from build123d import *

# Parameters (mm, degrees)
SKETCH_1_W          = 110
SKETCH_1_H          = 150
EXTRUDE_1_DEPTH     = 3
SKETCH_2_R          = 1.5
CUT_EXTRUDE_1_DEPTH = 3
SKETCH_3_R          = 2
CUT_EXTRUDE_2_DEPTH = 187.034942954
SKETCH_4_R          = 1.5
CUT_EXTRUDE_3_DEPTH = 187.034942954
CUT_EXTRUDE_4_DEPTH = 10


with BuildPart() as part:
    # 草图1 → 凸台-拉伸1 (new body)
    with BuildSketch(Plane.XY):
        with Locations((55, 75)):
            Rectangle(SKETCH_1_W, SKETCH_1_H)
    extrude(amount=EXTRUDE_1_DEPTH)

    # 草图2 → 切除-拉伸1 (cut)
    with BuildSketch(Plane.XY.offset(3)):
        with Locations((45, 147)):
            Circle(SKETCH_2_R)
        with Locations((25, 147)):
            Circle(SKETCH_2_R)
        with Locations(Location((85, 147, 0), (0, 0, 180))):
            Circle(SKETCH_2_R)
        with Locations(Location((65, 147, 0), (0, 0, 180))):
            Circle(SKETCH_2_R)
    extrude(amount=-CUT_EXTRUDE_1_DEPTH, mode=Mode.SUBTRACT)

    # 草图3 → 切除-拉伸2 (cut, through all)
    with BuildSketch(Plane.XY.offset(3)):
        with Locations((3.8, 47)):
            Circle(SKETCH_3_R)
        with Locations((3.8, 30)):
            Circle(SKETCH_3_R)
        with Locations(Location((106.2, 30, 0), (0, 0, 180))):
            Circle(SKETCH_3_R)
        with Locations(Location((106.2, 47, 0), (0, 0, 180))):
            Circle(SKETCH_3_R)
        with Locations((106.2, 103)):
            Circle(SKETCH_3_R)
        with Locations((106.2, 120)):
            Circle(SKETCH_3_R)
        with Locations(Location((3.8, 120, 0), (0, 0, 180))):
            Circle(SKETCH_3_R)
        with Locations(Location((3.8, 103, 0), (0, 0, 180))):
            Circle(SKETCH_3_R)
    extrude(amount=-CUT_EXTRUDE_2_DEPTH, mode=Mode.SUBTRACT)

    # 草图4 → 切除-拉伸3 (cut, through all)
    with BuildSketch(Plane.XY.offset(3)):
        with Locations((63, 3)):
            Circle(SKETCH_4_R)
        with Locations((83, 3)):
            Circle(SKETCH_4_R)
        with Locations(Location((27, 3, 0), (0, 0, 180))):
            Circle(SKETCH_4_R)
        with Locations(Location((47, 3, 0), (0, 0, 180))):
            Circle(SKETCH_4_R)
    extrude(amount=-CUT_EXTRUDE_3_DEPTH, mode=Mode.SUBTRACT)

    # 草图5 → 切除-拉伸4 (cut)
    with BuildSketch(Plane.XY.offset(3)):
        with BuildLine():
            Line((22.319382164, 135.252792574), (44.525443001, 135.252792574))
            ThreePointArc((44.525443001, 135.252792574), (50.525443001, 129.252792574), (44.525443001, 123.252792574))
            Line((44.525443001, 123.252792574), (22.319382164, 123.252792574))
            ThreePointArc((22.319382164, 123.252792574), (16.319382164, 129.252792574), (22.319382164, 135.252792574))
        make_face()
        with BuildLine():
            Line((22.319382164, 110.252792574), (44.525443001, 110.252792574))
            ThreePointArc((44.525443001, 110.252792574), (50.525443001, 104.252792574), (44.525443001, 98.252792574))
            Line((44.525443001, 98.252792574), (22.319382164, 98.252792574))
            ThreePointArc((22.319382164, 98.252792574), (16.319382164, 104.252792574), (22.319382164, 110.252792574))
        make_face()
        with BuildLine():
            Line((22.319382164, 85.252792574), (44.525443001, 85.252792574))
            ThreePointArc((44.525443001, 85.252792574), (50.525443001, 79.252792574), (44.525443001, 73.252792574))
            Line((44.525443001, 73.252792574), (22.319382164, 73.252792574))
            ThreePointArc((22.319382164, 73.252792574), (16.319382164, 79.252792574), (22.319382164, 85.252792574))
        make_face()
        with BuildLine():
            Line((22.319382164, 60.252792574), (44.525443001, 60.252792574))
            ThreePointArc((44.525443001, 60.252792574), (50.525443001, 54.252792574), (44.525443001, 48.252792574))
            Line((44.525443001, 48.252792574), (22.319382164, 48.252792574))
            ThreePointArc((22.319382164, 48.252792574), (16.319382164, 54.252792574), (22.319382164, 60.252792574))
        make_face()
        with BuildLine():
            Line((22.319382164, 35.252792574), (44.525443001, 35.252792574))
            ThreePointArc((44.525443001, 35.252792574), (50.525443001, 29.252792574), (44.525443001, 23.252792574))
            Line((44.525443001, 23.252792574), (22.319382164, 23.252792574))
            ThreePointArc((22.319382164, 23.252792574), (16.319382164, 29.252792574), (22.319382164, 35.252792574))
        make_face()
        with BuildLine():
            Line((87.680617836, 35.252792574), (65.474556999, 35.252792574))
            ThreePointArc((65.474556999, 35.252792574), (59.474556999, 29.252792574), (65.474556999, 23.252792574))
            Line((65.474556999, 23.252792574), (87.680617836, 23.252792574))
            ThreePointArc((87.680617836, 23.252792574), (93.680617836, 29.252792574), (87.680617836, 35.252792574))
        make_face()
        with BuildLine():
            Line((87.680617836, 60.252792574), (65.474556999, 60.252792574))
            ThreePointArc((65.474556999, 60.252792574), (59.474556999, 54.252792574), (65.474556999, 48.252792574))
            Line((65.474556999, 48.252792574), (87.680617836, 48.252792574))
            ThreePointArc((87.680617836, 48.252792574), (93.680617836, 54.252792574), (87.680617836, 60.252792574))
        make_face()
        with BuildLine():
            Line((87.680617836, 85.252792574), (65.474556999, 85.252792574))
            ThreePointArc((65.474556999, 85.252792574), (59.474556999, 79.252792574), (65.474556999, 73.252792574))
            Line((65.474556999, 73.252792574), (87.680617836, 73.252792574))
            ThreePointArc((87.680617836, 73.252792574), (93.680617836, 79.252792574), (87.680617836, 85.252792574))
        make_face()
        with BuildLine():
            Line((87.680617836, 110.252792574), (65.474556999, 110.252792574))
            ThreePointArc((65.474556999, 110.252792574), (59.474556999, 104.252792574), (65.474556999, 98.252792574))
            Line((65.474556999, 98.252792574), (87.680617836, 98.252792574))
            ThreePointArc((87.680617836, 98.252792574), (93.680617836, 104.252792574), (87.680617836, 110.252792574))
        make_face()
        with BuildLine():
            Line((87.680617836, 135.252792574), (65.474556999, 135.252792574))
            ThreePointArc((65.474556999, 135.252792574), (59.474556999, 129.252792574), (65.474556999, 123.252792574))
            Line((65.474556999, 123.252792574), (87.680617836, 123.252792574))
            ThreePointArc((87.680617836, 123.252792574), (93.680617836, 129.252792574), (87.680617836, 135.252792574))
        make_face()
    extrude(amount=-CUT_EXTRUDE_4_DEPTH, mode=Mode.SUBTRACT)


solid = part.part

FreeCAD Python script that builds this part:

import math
import FreeCAD as App
import Part
import Sketcher


def add_polygon(sketch, points):
    """Adds a closed chain of lines whose ends are joined by coincident constraints."""
    first, n = sketch.GeometryCount, len(points)
    for a, b in zip(points, points[1:] + points[:1]):
        sketch.addGeometry(Part.LineSegment(App.Vector(*a, 0), App.Vector(*b, 0)), False)
    for i in range(n):
        sketch.addConstraint(Sketcher.Constraint("Coincident", first + i, 2, first + (i + 1) % n, 1))

doc = App.newDocument("Part")
body = doc.addObject("PartDesign::Body", "Body")

# Sketch on XY plane
sketch1 = body.newObject("Sketcher::SketchObject", "Sketch")
sketch1.AttachmentSupport = (doc.getObject("XY_Plane"), [""])
sketch1.MapMode = "FlatFace"
add_polygon(sketch1, [(0, 150), (0, 0), (110, 0), (110, 150)])  # lines 0-3
sketch1.addConstraint([
    Sketcher.Constraint("Vertical", 0),
    Sketcher.Constraint("Horizontal", 1),
    Sketcher.Constraint("Vertical", 2),
    Sketcher.Constraint("Horizontal", 3),
    Sketcher.Constraint("Coincident", 0, 2, -1, 1),
    Sketcher.Constraint("DistanceX", 1, 1, 1, 2, 110.0),
    Sketcher.Constraint("DistanceY", 0, 2, 0, 1, 150.0),
])
pad1 = body.newObject("PartDesign::Pad", "Pad")
pad1.Profile = sketch1
pad1.Length = 3

# Sketch on XY plane
sketch2 = body.newObject("Sketcher::SketchObject", "Sketch001")
sketch2.AttachmentSupport = (doc.getObject("XY_Plane"), [""])
sketch2.MapMode = "FlatFace"
sketch2.AttachmentOffset = App.Placement(App.Vector(0, 0, 3), App.Rotation())
sketch2.addGeometry([
    Part.Circle(App.Vector(45, 147, 0), App.Vector(0, 0, 1), 1.5),
    Part.Circle(App.Vector(25, 147, 0), App.Vector(0, 0, 1), 1.5),
    Part.Circle(App.Vector(85, 147, 0), App.Vector(0, 0, 1), 1.5),
    Part.Circle(App.Vector(65, 147, 0), App.Vector(0, 0, 1), 1.5),
], False)
sketch2.addConstraint([
    Sketcher.Constraint("Equal", 0, 1),
    Sketcher.Constraint("Equal", 1, 2),
    Sketcher.Constraint("Equal", 2, 3),
    Sketcher.Constraint("Horizontal", 0, 3, 1, 3),
    Sketcher.Constraint("Horizontal", 1, 3, 2, 3),
    Sketcher.Constraint("Horizontal", 2, 3, 3, 3),
    Sketcher.Constraint("Diameter", 0, 3.0),
    Sketcher.Constraint("DistanceX", -1, 1, 0, 3, 45.0),
    Sketcher.Constraint("DistanceY", -1, 1, 0, 3, 147.0),
    Sketcher.Constraint("DistanceX", -1, 1, 1, 3, 25.0),
    Sketcher.Constraint("DistanceX", -1, 1, 2, 3, 85.0),
    Sketcher.Constraint("DistanceX", -1, 1, 3, 3, 65.0),
])
pocket1 = body.newObject("PartDesign::Pocket", "Pocket")
pocket1.Profile = sketch2
pocket1.Length = 3

# Sketch on XY plane
sketch3 = body.newObject("Sketcher::SketchObject", "Sketch002")
sketch3.AttachmentSupport = (doc.getObject("XY_Plane"), [""])
sketch3.MapMode = "FlatFace"
sketch3.AttachmentOffset = App.Placement(App.Vector(0, 0, 3), App.Rotation())
sketch3.addGeometry([
    Part.Circle(App.Vector(3.8, 47, 0), App.Vector(0, 0, 1), 2),  # 0
    Part.Circle(App.Vector(3.8, 30, 0), App.Vector(0, 0, 1), 2),  # 1
    Part.Circle(App.Vector(106.2, 30, 0), App.Vector(0, 0, 1), 2),  # 2
    Part.Circle(App.Vector(106.2, 47, 0), App.Vector(0, 0, 1), 2),  # 3
    Part.Circle(App.Vector(106.2, 103, 0), App.Vector(0, 0, 1), 2),  # 4
    Part.Circle(App.Vector(106.2, 120, 0), App.Vector(0, 0, 1), 2),  # 5
    Part.Circle(App.Vector(3.8, 120, 0), App.Vector(0, 0, 1), 2),  # 6
    Part.Circle(App.Vector(3.8, 103, 0), App.Vector(0, 0, 1), 2),  # 7
], False)
sketch3.addConstraint([
    Sketcher.Constraint("Equal", 0, 1),
    Sketcher.Constraint("Equal", 1, 2),
    Sketcher.Constraint("Equal", 2, 3),
    Sketcher.Constraint("Equal", 3, 4),
    Sketcher.Constraint("Equal", 4, 5),
    Sketcher.Constraint("Equal", 5, 6),
    Sketcher.Constraint("Equal", 6, 7),
    Sketcher.Constraint("Horizontal", 1, 3, 2, 3),
    Sketcher.Constraint("Horizontal", 0, 3, 3, 3),
    Sketcher.Constraint("Horizontal", 5, 3, 6, 3),
    Sketcher.Constraint("Horizontal", 4, 3, 7, 3),
    Sketcher.Constraint("Vertical", 0, 3, 1, 3),
    Sketcher.Constraint("Vertical", 2, 3, 3, 3),
    Sketcher.Constraint("Vertical", 3, 3, 4, 3),
    Sketcher.Constraint("Vertical", 4, 3, 5, 3),
    Sketcher.Constraint("Vertical", 1, 3, 6, 3),
    Sketcher.Constraint("Vertical", 6, 3, 7, 3),
    Sketcher.Constraint("Diameter", 0, 4.0),
    Sketcher.Constraint("DistanceY", -1, 1, 0, 3, 47.0),
    Sketcher.Constraint("DistanceY", -1, 1, 1, 3, 30.0),
    Sketcher.Constraint("DistanceY", -1, 1, 4, 3, 103.0),
    Sketcher.Constraint("DistanceY", -1, 1, 5, 3, 120.0),
    Sketcher.Constraint("DistanceX", -1, 1, 0, 3, 3.8),
    Sketcher.Constraint("DistanceX", -1, 1, 2, 3, 106.2),
])
pocket2 = body.newObject("PartDesign::Pocket", "Pocket001")
pocket2.Profile = sketch3
pocket2.Type = "ThroughAll"

# Sketch on XY plane
sketch4 = body.newObject("Sketcher::SketchObject", "Sketch003")
sketch4.AttachmentSupport = (doc.getObject("XY_Plane"), [""])
sketch4.MapMode = "FlatFace"
sketch4.AttachmentOffset = App.Placement(App.Vector(0, 0, 3), App.Rotation())
sketch4.addGeometry([
    Part.Circle(App.Vector(63, 3, 0), App.Vector(0, 0, 1), 1.5),
    Part.Circle(App.Vector(83, 3, 0), App.Vector(0, 0, 1), 1.5),
    Part.Circle(App.Vector(27, 3, 0), App.Vector(0, 0, 1), 1.5),
    Part.Circle(App.Vector(47, 3, 0), App.Vector(0, 0, 1), 1.5),
], False)
sketch4.addConstraint([
    Sketcher.Constraint("Equal", 0, 1),
    Sketcher.Constraint("Equal", 1, 2),
    Sketcher.Constraint("Equal", 2, 3),
    Sketcher.Constraint("Horizontal", 0, 3, 1, 3),
    Sketcher.Constraint("Horizontal", 1, 3, 2, 3),
    Sketcher.Constraint("Horizontal", 2, 3, 3, 3),
    Sketcher.Constraint("Diameter", 0, 3.0),
    Sketcher.Constraint("DistanceX", -1, 1, 0, 3, 63.0),
    Sketcher.Constraint("DistanceY", -1, 1, 0, 3, 3.0),
    Sketcher.Constraint("DistanceX", -1, 1, 1, 3, 83.0),
    Sketcher.Constraint("DistanceX", -1, 1, 2, 3, 27.0),
    Sketcher.Constraint("DistanceX", -1, 1, 3, 3, 47.0),
])
pocket3 = body.newObject("PartDesign::Pocket", "Pocket002")
pocket3.Profile = sketch4
pocket3.Type = "ThroughAll"

# Sketch on XY plane
sketch5 = body.newObject("Sketcher::SketchObject", "Sketch004")
sketch5.AttachmentSupport = (doc.getObject("XY_Plane"), [""])
sketch5.MapMode = "FlatFace"
sketch5.AttachmentOffset = App.Placement(App.Vector(0, 0, 3), App.Rotation())
sketch5.addGeometry([
    Part.LineSegment(App.Vector(45, 135, 0), App.Vector(22, 135, 0)),  # 0
    Part.ArcOfCircle(Part.Circle(App.Vector(22, 129, 0), App.Vector(0, 0, 1), 6), math.radians(90), math.radians(270)),  # 1
    Part.LineSegment(App.Vector(22, 123, 0), App.Vector(45, 123, 0)),  # 2
    Part.ArcOfCircle(Part.Circle(App.Vector(45, 129, 0), App.Vector(0, 0, 1), 6), math.radians(-90), math.radians(90)),  # 3
    Part.LineSegment(App.Vector(45, 110, 0), App.Vector(22, 110, 0)),  # 4
    Part.ArcOfCircle(Part.Circle(App.Vector(22, 104, 0), App.Vector(0, 0, 1), 6), math.radians(90), math.radians(270)),  # 5
    Part.LineSegment(App.Vector(22, 98, 0), App.Vector(45, 98, 0)),  # 6
    Part.ArcOfCircle(Part.Circle(App.Vector(45, 104, 0), App.Vector(0, 0, 1), 6), math.radians(-90), math.radians(90)),  # 7
    Part.LineSegment(App.Vector(45, 85, 0), App.Vector(22, 85, 0)),  # 8
    Part.ArcOfCircle(Part.Circle(App.Vector(22, 79, 0), App.Vector(0, 0, 1), 6), math.radians(90), math.radians(270)),  # 9
    Part.LineSegment(App.Vector(22, 73, 0), App.Vector(45, 73, 0)),  # 10
    Part.ArcOfCircle(Part.Circle(App.Vector(45, 79, 0), App.Vector(0, 0, 1), 6), math.radians(-90), math.radians(90)),  # 11
    Part.LineSegment(App.Vector(45, 60, 0), App.Vector(22, 60, 0)),  # 12
    Part.ArcOfCircle(Part.Circle(App.Vector(22, 54, 0), App.Vector(0, 0, 1), 6), math.radians(90), math.radians(270)),  # 13
    Part.LineSegment(App.Vector(22, 48, 0), App.Vector(45, 48, 0)),  # 14
    Part.ArcOfCircle(Part.Circle(App.Vector(45, 54, 0), App.Vector(0, 0, 1), 6), math.radians(-90), math.radians(90)),  # 15
    Part.LineSegment(App.Vector(45, 35, 0), App.Vector(22, 35, 0)),  # 16
    Part.ArcOfCircle(Part.Circle(App.Vector(22, 29, 0), App.Vector(0, 0, 1), 6), math.radians(90), math.radians(270)),  # 17
    Part.LineSegment(App.Vector(22, 23, 0), App.Vector(45, 23, 0)),  # 18
    Part.ArcOfCircle(Part.Circle(App.Vector(45, 29, 0), App.Vector(0, 0, 1), 6), math.radians(-90), math.radians(90)),  # 19
    Part.LineSegment(App.Vector(88, 35, 0), App.Vector(65, 35, 0)),  # 20
    Part.ArcOfCircle(Part.Circle(App.Vector(65, 29, 0), App.Vector(0, 0, 1), 6), math.radians(90), math.radians(270)),  # 21
    Part.LineSegment(App.Vector(65, 23, 0), App.Vector(88, 23, 0)),  # 22
    Part.ArcOfCircle(Part.Circle(App.Vector(88, 29, 0), App.Vector(0, 0, 1), 6), math.radians(-90), math.radians(90)),  # 23
    Part.LineSegment(App.Vector(88, 60, 0), App.Vector(65, 60, 0)),  # 24
    Part.ArcOfCircle(Part.Circle(App.Vector(65, 54, 0), App.Vector(0, 0, 1), 6), math.radians(90), math.radians(270)),  # 25
    Part.LineSegment(App.Vector(65, 48, 0), App.Vector(88, 48, 0)),  # 26
    Part.ArcOfCircle(Part.Circle(App.Vector(88, 54, 0), App.Vector(0, 0, 1), 6), math.radians(-90), math.radians(90)),  # 27
    Part.LineSegment(App.Vector(88, 85, 0), App.Vector(65, 85, 0)),  # 28
    Part.ArcOfCircle(Part.Circle(App.Vector(65, 79, 0), App.Vector(0, 0, 1), 6), math.radians(90), math.radians(270)),  # 29
    Part.LineSegment(App.Vector(65, 73, 0), App.Vector(88, 73, 0)),  # 30
    Part.ArcOfCircle(Part.Circle(App.Vector(88, 79, 0), App.Vector(0, 0, 1), 6), math.radians(-90), math.radians(90)),  # 31
    Part.LineSegment(App.Vector(88, 110, 0), App.Vector(65, 110, 0)),  # 32
    Part.ArcOfCircle(Part.Circle(App.Vector(65, 104, 0), App.Vector(0, 0, 1), 6), math.radians(90), math.radians(270)),  # 33
    Part.LineSegment(App.Vector(65, 98, 0), App.Vector(88, 98, 0)),  # 34
    Part.ArcOfCircle(Part.Circle(App.Vector(88, 104, 0), App.Vector(0, 0, 1), 6), math.radians(-90), math.radians(90)),  # 35
    Part.LineSegment(App.Vector(88, 135, 0), App.Vector(65, 135, 0)),  # 36
    Part.ArcOfCircle(Part.Circle(App.Vector(65, 129, 0), App.Vector(0, 0, 1), 6), math.radians(90), math.radians(270)),  # 37
    Part.LineSegment(App.Vector(65, 123, 0), App.Vector(88, 123, 0)),  # 38
    Part.ArcOfCircle(Part.Circle(App.Vector(88, 129, 0), App.Vector(0, 0, 1), 6), math.radians(-90), math.radians(90)),  # 39
], False)
sketch5.addConstraint([
    Sketcher.Constraint("Tangent", 0, 2, 1, 1),
    Sketcher.Constraint("Tangent", 1, 2, 2, 1),
    Sketcher.Constraint("Tangent", 2, 2, 3, 1),
    Sketcher.Constraint("Tangent", 3, 2, 0, 1),
    Sketcher.Constraint("Tangent", 4, 2, 5, 1),
    Sketcher.Constraint("Tangent", 5, 2, 6, 1),
    Sketcher.Constraint("Tangent", 6, 2, 7, 1),
    Sketcher.Constraint("Tangent", 7, 2, 4, 1),
    Sketcher.Constraint("Tangent", 8, 2, 9, 1),
    Sketcher.Constraint("Tangent", 9, 2, 10, 1),
    Sketcher.Constraint("Tangent", 10, 2, 11, 1),
    Sketcher.Constraint("Tangent", 11, 2, 8, 1),
    Sketcher.Constraint("Tangent", 12, 2, 13, 1),
    Sketcher.Constraint("Tangent", 13, 2, 14, 1),
    Sketcher.Constraint("Tangent", 14, 2, 15, 1),
    Sketcher.Constraint("Tangent", 15, 2, 12, 1),
    Sketcher.Constraint("Tangent", 16, 2, 17, 1),
    Sketcher.Constraint("Tangent", 17, 2, 18, 1),
    Sketcher.Constraint("Tangent", 18, 2, 19, 1),
    Sketcher.Constraint("Tangent", 19, 2, 16, 1),
    Sketcher.Constraint("Tangent", 20, 2, 21, 1),
    Sketcher.Constraint("Tangent", 21, 2, 22, 1),
    Sketcher.Constraint("Tangent", 22, 2, 23, 1),
    Sketcher.Constraint("Tangent", 23, 2, 20, 1),
    Sketcher.Constraint("Tangent", 24, 2, 25, 1),
    Sketcher.Constraint("Tangent", 25, 2, 26, 1),
    Sketcher.Constraint("Tangent", 26, 2, 27, 1),
    Sketcher.Constraint("Tangent", 27, 2, 24, 1),
    Sketcher.Constraint("Tangent", 28, 2, 29, 1),
    Sketcher.Constraint("Tangent", 29, 2, 30, 1),
    Sketcher.Constraint("Tangent", 30, 2, 31, 1),
    Sketcher.Constraint("Tangent", 31, 2, 28, 1),
    Sketcher.Constraint("Tangent", 32, 2, 33, 1),
    Sketcher.Constraint("Tangent", 33, 2, 34, 1),
    Sketcher.Constraint("Tangent", 34, 2, 35, 1),
    Sketcher.Constraint("Tangent", 35, 2, 32, 1),
    Sketcher.Constraint("Tangent", 36, 2, 37, 1),
    Sketcher.Constraint("Tangent", 37, 2, 38, 1),
    Sketcher.Constraint("Tangent", 38, 2, 39, 1),
    Sketcher.Constraint("Tangent", 39, 2, 36, 1),
    Sketcher.Constraint("Horizontal", 0),
    Sketcher.Constraint("Horizontal", 2),
    Sketcher.Constraint("Horizontal", 4),
    Sketcher.Constraint("Horizontal", 6),
    Sketcher.Constraint("Horizontal", 8),
    Sketcher.Constraint("Horizontal", 10),
    Sketcher.Constraint("Horizontal", 12),
    Sketcher.Constraint("Horizontal", 14),
    Sketcher.Constraint("Horizontal", 16),
    Sketcher.Constraint("Horizontal", 18),
    Sketcher.Constraint("Horizontal", 20),
    Sketcher.Constraint("Horizontal", 22),
    Sketcher.Constraint("Horizontal", 24),
    Sketcher.Constraint("Horizontal", 26),
    Sketcher.Constraint("Horizontal", 28),
    Sketcher.Constraint("Horizontal", 30),
    Sketcher.Constraint("Horizontal", 32),
    Sketcher.Constraint("Horizontal", 34),
    Sketcher.Constraint("Horizontal", 36),
    Sketcher.Constraint("Horizontal", 38),
    Sketcher.Constraint("Equal", 3, 5),
    Sketcher.Constraint("Equal", 7, 9),
    Sketcher.Constraint("Equal", 11, 13),
    Sketcher.Constraint("Equal", 15, 17),
    Sketcher.Constraint("Equal", 19, 21),
    Sketcher.Constraint("Equal", 23, 25),
    Sketcher.Constraint("Equal", 27, 29),
    Sketcher.Constraint("Equal", 31, 33),
    Sketcher.Constraint("Equal", 35, 37),
    Sketcher.Constraint("Horizontal", 19, 3, 21, 3),
    Sketcher.Constraint("Horizontal", 15, 3, 25, 3),
    Sketcher.Constraint("Horizontal", 11, 3, 29, 3),
    Sketcher.Constraint("Horizontal", 7, 3, 33, 3),
    Sketcher.Constraint("Horizontal", 3, 3, 37, 3),
    Sketcher.Constraint("Vertical", 1, 3, 5, 3),
    Sketcher.Constraint("Vertical", 3, 3, 7, 3),
    Sketcher.Constraint("Vertical", 5, 3, 9, 3),
    Sketcher.Constraint("Vertical", 7, 3, 11, 3),
    Sketcher.Constraint("Vertical", 9, 3, 13, 3),
    Sketcher.Constraint("Vertical", 11, 3, 15, 3),
    Sketcher.Constraint("Vertical", 13, 3, 17, 3),
    Sketcher.Constraint("Vertical", 15, 3, 19, 3),
    Sketcher.Constraint("Vertical", 21, 3, 25, 3),
    Sketcher.Constraint("Vertical", 23, 3, 27, 3),
    Sketcher.Constraint("Vertical", 25, 3, 29, 3),
    Sketcher.Constraint("Vertical", 27, 3, 31, 3),
    Sketcher.Constraint("Vertical", 29, 3, 33, 3),
    Sketcher.Constraint("Vertical", 31, 3, 35, 3),
    Sketcher.Constraint("Vertical", 33, 3, 37, 3),
    Sketcher.Constraint("Vertical", 35, 3, 39, 3),
    Sketcher.Constraint("Equal", 18, 20),
    Sketcher.Constraint("Radius", 1, 6.0),
    Sketcher.Constraint("DistanceY", 5, 3, 1, 3, 25.0),
    Sketcher.Constraint("DistanceY", 9, 3, 5, 3, 25.0),
    Sketcher.Constraint("DistanceY", 13, 3, 9, 3, 25.0),
    Sketcher.Constraint("DistanceY", 17, 3, 13, 3, 25.0),
    Sketcher.Constraint("DistanceX", 0, 2, 0, 1, 22.206061),
    Sketcher.Constraint("DistanceX", -1, 1, 1, 3, 22.319382),
    Sketcher.Constraint("DistanceY", -1, 1, 1, 3, 129.252793),
    Sketcher.Constraint("DistanceX", -1, 1, 21, 3, 65.474557),
])
pocket4 = body.newObject("PartDesign::Pocket", "Pocket003")
pocket4.Profile = sketch5
pocket4.Length = 10

doc.recompute()
